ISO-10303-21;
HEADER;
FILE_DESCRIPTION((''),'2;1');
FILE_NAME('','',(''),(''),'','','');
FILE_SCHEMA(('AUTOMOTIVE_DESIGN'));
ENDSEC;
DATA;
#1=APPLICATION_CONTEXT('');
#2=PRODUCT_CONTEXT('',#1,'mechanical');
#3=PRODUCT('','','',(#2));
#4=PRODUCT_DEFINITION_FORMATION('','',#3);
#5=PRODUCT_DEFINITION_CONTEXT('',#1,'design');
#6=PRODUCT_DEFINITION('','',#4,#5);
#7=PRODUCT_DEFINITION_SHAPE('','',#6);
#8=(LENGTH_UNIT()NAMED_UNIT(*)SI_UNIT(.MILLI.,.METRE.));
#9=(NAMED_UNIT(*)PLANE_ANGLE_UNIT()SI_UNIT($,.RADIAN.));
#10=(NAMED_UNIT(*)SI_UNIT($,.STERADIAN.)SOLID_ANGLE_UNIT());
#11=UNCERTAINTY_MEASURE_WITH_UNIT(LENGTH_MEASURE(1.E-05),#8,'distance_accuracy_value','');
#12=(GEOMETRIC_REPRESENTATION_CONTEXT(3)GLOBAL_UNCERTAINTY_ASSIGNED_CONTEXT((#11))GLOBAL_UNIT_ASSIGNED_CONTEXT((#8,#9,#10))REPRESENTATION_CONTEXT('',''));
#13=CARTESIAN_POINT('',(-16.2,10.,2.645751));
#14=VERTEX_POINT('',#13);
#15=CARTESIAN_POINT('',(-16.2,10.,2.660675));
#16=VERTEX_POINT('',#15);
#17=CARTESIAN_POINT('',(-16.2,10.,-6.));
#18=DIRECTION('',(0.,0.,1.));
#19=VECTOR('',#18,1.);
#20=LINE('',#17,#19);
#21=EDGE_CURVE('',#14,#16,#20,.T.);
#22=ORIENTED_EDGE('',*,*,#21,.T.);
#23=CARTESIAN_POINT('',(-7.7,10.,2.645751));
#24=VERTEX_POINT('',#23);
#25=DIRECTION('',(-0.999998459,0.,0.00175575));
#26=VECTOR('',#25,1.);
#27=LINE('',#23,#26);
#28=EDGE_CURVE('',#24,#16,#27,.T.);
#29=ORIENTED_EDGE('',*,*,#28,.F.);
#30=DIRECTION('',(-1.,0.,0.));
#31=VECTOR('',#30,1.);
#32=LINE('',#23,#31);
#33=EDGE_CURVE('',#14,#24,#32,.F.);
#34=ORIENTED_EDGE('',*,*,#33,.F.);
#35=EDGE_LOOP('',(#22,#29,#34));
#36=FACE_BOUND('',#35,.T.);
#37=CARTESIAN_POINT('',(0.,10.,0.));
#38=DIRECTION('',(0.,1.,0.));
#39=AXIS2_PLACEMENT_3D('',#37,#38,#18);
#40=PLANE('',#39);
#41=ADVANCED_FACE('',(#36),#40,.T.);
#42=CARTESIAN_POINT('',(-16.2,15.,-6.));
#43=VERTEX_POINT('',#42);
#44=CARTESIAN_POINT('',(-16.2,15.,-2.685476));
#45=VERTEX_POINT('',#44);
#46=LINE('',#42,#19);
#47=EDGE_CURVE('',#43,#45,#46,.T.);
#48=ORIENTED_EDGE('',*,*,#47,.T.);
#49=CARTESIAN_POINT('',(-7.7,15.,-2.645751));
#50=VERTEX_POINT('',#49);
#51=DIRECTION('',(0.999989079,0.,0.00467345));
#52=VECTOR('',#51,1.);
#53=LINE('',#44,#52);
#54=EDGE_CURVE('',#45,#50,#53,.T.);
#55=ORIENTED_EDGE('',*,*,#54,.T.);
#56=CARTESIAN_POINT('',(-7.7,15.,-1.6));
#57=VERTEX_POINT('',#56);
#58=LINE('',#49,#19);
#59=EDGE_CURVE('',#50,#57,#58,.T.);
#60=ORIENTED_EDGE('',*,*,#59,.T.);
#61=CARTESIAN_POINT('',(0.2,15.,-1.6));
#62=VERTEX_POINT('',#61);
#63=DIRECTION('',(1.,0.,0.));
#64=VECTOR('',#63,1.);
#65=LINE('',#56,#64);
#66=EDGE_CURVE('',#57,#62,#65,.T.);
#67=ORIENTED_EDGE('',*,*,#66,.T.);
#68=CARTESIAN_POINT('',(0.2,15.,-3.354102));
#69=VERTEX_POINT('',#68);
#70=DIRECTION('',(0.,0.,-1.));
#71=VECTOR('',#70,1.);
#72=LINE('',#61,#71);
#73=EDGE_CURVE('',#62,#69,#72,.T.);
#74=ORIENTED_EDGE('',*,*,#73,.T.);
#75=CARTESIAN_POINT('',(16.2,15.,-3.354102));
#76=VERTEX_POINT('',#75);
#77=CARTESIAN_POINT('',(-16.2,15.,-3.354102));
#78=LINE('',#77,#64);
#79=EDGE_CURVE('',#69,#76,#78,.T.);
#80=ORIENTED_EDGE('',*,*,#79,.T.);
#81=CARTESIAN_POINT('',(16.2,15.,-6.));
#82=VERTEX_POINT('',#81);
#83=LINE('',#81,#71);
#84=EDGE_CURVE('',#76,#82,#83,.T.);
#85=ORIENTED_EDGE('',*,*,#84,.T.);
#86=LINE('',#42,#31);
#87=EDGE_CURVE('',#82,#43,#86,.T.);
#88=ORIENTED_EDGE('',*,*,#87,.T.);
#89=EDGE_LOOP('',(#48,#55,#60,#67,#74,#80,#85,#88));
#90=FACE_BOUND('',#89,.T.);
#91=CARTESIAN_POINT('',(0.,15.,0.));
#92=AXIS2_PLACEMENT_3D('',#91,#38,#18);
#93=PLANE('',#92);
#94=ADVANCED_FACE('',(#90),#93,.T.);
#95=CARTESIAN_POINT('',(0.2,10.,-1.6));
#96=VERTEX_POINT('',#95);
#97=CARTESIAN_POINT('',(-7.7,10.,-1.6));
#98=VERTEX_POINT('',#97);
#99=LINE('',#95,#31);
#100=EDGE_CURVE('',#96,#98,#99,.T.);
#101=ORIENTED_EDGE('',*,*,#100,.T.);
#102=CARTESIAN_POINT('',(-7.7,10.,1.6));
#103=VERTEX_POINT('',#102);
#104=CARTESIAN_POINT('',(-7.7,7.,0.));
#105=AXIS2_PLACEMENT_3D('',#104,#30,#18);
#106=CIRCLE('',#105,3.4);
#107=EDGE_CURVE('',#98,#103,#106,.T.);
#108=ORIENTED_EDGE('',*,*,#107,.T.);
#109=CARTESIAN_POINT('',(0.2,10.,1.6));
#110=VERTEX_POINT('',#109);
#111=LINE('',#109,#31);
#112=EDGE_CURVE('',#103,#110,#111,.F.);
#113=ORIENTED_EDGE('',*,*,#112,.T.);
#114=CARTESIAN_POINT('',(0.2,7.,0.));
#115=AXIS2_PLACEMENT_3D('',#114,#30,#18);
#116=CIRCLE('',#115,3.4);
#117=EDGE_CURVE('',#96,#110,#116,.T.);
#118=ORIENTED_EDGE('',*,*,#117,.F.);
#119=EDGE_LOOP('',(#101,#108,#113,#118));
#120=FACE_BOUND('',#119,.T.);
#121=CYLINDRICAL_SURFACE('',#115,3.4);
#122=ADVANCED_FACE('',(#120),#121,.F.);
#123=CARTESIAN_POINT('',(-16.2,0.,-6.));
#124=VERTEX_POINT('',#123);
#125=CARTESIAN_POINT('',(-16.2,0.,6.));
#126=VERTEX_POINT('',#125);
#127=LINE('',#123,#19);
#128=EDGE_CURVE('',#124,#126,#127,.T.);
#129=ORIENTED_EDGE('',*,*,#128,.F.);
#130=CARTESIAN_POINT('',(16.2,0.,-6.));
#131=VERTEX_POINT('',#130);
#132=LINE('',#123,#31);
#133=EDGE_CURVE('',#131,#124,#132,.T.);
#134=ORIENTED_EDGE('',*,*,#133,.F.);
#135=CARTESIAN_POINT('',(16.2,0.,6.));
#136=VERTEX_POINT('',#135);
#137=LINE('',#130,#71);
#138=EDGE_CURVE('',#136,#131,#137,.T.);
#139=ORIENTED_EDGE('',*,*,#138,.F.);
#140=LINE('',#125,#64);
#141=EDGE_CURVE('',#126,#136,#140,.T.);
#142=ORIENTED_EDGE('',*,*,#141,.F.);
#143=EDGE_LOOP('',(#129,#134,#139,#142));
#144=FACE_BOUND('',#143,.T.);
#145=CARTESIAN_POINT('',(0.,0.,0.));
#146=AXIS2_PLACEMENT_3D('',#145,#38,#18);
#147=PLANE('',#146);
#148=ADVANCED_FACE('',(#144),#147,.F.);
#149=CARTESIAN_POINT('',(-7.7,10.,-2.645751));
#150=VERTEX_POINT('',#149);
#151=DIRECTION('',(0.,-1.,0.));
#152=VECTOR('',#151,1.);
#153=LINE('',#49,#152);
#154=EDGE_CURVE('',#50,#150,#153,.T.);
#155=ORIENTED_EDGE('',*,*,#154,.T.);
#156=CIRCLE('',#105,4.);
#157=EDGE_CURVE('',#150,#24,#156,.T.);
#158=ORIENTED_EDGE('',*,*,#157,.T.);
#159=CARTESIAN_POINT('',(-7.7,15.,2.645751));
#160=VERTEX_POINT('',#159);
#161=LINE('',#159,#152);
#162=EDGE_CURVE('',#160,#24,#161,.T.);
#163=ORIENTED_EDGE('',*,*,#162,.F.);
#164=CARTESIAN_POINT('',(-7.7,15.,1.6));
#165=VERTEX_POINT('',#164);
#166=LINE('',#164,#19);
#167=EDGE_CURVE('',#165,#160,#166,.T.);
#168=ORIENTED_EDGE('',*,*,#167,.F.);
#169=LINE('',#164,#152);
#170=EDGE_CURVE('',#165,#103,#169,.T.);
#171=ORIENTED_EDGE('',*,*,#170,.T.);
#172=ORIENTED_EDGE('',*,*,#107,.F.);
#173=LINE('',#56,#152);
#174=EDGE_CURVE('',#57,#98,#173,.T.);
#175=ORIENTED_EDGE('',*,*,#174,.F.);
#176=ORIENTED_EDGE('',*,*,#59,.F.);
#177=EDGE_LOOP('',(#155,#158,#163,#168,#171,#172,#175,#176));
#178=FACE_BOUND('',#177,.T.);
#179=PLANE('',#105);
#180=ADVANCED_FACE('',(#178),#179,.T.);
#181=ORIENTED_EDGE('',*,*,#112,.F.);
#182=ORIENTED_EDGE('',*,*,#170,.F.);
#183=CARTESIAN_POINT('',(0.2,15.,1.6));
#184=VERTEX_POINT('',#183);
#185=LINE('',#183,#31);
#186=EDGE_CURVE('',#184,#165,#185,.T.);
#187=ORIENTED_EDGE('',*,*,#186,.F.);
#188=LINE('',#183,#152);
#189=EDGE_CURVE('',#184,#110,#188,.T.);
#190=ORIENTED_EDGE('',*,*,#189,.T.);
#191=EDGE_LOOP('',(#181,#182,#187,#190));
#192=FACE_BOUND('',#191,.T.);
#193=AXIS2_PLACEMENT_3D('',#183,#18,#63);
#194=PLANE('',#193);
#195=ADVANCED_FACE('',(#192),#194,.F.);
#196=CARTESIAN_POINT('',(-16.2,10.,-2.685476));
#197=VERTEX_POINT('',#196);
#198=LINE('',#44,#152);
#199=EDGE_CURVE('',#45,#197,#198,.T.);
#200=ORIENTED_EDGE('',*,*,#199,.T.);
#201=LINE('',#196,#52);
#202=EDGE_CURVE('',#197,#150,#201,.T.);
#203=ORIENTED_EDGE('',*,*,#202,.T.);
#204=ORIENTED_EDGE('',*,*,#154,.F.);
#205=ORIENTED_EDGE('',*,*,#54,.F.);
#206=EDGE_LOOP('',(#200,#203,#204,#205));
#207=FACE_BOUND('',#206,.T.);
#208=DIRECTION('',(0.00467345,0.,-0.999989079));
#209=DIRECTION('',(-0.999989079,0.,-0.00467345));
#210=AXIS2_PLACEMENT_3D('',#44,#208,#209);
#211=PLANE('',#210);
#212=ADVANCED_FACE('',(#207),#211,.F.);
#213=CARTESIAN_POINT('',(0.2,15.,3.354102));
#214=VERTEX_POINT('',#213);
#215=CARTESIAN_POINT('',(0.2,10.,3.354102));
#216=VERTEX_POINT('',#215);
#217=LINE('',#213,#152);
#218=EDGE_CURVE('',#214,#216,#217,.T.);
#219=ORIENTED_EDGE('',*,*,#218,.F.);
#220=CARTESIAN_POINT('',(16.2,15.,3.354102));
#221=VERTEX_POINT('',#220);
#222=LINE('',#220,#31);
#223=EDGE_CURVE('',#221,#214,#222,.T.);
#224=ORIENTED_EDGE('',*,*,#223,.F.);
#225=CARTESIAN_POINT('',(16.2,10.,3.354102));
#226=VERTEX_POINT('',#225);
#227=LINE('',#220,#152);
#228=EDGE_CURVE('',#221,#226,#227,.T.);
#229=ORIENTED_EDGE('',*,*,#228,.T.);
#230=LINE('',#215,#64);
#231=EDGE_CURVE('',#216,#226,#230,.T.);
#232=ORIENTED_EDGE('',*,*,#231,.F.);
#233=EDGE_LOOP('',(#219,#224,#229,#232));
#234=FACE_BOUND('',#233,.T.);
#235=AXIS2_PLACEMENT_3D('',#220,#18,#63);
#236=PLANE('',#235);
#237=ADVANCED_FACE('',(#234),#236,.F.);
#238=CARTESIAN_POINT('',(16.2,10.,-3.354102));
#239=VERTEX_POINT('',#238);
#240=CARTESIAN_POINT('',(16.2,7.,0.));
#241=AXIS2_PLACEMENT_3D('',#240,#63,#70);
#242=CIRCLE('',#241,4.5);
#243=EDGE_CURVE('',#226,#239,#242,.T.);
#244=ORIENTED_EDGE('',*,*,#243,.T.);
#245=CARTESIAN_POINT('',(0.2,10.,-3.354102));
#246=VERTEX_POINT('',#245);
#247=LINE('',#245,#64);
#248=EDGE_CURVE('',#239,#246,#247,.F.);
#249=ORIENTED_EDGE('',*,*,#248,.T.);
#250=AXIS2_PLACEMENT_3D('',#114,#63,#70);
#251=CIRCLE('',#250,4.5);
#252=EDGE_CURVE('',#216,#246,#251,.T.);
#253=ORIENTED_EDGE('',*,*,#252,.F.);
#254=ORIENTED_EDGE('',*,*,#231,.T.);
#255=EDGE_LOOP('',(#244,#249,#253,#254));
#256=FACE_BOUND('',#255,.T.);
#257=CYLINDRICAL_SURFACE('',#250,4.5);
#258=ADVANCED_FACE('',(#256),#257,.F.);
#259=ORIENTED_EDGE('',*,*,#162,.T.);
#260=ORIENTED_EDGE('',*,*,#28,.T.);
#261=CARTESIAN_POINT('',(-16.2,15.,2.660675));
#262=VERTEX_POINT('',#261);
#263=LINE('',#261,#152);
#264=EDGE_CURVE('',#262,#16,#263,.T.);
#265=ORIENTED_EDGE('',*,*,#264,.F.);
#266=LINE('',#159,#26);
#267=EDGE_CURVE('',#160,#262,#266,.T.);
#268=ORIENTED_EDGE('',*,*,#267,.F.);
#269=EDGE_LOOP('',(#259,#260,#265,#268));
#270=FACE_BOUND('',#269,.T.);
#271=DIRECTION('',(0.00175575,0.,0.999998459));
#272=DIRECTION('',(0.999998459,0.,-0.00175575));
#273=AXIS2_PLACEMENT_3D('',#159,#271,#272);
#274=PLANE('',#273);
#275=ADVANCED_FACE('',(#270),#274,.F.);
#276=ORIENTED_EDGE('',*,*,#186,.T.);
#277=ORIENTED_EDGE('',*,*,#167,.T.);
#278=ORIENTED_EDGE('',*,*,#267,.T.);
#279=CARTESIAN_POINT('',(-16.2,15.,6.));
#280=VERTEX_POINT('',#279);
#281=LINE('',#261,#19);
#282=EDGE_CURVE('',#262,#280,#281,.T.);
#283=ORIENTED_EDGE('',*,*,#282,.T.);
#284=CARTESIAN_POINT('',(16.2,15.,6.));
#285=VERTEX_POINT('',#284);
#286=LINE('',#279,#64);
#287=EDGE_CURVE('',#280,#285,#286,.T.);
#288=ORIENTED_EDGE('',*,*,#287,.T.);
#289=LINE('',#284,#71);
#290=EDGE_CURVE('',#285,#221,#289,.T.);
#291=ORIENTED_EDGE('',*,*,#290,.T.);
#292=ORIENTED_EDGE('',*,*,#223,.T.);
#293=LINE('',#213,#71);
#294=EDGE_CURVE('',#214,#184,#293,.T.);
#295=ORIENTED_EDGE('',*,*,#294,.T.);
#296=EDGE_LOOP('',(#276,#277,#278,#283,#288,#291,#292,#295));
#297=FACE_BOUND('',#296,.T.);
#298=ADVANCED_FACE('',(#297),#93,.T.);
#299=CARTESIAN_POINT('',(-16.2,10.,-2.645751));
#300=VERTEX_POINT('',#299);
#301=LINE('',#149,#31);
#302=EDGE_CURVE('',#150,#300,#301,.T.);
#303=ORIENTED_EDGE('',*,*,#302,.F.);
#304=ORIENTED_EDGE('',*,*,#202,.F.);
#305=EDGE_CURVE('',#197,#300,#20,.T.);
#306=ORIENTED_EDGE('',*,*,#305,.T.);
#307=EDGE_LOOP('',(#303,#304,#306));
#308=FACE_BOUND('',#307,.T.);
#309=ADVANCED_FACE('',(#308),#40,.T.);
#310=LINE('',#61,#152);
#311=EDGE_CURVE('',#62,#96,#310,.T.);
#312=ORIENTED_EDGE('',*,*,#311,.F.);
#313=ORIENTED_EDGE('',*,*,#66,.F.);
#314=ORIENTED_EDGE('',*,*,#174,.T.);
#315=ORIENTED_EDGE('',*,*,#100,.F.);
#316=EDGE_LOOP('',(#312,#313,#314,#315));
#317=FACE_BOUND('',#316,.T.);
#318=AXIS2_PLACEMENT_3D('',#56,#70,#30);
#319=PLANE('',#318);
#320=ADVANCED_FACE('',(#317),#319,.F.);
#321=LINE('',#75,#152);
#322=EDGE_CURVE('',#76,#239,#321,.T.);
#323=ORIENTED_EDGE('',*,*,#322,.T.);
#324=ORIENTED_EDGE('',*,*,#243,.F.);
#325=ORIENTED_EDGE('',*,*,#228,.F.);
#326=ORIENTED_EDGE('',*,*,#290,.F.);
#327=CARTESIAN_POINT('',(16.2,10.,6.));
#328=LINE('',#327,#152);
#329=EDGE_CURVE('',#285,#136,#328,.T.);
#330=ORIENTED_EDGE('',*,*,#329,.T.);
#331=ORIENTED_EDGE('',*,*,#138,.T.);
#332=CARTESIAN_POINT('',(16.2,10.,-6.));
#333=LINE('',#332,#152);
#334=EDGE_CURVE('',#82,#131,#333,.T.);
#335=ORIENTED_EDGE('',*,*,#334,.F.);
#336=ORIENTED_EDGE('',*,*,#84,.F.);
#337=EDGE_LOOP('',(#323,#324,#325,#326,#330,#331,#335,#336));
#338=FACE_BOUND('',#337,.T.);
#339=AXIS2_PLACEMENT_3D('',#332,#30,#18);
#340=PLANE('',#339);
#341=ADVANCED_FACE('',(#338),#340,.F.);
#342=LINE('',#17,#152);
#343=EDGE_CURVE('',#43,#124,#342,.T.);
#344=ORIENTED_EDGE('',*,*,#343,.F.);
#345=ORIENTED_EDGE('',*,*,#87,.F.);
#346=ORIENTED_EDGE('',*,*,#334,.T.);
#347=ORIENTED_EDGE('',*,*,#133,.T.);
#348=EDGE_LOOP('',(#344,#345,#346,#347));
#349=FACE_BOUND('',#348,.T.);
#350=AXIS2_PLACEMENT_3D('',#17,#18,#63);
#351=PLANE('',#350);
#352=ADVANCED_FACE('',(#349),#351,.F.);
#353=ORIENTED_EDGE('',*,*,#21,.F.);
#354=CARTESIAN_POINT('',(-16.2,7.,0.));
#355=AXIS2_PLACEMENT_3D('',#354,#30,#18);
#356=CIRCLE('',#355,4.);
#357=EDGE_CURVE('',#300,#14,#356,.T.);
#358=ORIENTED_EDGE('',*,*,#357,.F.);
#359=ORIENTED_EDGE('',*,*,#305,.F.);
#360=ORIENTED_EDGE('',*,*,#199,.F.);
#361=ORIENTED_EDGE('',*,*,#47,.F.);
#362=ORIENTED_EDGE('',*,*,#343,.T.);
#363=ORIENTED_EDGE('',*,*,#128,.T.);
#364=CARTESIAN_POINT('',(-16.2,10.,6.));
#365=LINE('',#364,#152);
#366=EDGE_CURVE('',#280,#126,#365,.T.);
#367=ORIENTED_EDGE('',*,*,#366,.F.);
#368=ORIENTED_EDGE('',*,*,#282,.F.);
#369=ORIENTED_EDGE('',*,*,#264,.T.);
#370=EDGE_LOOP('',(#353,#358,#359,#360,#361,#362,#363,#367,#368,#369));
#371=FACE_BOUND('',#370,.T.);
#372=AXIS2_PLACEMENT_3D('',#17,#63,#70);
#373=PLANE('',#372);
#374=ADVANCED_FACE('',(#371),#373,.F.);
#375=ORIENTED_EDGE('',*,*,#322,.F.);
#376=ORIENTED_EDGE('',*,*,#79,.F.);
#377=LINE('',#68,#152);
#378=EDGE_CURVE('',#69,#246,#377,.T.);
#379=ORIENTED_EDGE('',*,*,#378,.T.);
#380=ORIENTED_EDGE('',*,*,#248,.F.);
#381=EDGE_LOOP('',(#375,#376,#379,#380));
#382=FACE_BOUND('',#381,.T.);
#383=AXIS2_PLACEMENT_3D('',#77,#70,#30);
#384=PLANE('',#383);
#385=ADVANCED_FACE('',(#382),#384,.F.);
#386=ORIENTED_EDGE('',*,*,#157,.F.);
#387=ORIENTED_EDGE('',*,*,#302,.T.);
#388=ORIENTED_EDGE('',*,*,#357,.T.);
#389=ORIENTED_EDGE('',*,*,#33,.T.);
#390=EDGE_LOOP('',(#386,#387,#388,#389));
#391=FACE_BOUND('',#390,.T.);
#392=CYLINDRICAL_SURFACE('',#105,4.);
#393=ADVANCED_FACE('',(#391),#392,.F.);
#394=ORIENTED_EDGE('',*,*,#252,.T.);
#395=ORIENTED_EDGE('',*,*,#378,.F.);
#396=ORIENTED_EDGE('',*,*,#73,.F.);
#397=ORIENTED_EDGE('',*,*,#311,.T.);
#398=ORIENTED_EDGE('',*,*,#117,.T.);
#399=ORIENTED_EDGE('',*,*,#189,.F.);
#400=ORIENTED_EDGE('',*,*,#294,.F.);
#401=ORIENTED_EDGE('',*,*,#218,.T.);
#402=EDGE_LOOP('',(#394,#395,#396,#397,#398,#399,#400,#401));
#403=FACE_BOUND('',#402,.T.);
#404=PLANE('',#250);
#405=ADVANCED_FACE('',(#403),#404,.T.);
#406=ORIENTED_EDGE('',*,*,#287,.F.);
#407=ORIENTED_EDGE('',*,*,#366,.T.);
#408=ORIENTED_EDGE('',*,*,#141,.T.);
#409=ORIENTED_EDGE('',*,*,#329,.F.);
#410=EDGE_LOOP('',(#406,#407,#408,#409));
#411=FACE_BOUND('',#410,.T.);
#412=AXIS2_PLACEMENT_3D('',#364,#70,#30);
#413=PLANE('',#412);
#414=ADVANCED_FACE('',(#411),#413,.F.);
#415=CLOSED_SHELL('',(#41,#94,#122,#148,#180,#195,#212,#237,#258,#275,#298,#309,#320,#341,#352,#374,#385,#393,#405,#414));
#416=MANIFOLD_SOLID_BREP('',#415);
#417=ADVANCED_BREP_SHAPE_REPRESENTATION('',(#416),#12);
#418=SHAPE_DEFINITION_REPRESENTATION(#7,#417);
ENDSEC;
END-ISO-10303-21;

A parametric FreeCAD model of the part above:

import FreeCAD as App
import Part
import Sketcher

V = App.Vector


def add_polygon(sketch, points):
    """Adds a closed chain of lines whose ends are joined by coincident constraints."""
    first, n = sketch.GeometryCount, len(points)
    for a, b in zip(points, points[1:] + points[:1]):
        sketch.addGeometry(Part.LineSegment(App.Vector(*a, 0), App.Vector(*b, 0)), False)
    for i in range(n):
        sketch.addConstraint(Sketcher.Constraint("Coincident", first + i, 2, first + (i + 1) % n, 1))

doc = App.newDocument("Part")
body = doc.addObject("PartDesign::Body", "Body")

# Sketch on XZ plane
sketch1 = body.newObject("Sketcher::SketchObject", "Sketch")
sketch1.AttachmentSupport = (doc.getObject("XZ_Plane"), [""])
sketch1.MapMode = "FlatFace"
add_polygon(sketch1, [(-16.2, -6), (-16.2, 6), (16.2, 6), (16.2, -6)])  # lines 0-3
sketch1.addConstraint(Sketcher.Constraint("Vertical", 0))
sketch1.addConstraint(Sketcher.Constraint("Horizontal", 1))
sketch1.addConstraint(Sketcher.Constraint("Vertical", 2))
sketch1.addConstraint(Sketcher.Constraint("Horizontal", 3))
sketch1.addConstraint(Sketcher.Constraint("Symmetric", 0, 2, 2, 2, -1, 1))
sketch1.addConstraint(Sketcher.Constraint("DistanceY", 0, 1, 0, 2, 12.0))
sketch1.addConstraint(Sketcher.Constraint("DistanceX", 1, 1, 1, 2, 32.4))
pad1 = body.newObject("PartDesign::Pad", "Pad")
pad1.Profile = sketch1
pad1.Length = 10
pad1.Reversed = True

# Sketch on YZ plane
sketch2 = body.newObject("Sketcher::SketchObject", "Sketch001")
sketch2.AttachmentSupport = (doc.getObject("YZ_Plane"), [""])
sketch2.MapMode = "FlatFace"
sketch2.AttachmentOffset = App.Placement(V(0, 0, -16.2), App.Rotation())
sketch2.addGeometry(Part.Circle(V(7, 0, 0), V(0, 0, 1), 4), False)
sketch2.addConstraint(Sketcher.Constraint("PointOnObject", 0, 3, -1))
sketch2.addConstraint(Sketcher.Constraint("Diameter", 0, 8.0))
sketch2.addConstraint(Sketcher.Constraint("DistanceX", -1, 1, 0, 3, 7.0))
pocket1 = body.newObject("PartDesign::Pocket", "Pocket")
pocket1.Profile = sketch2
pocket1.Length = 8.5
pocket1.Reversed = True

# Sketch on YZ plane
sketch3 = body.newObject("Sketcher::SketchObject", "Sketch002")
sketch3.AttachmentSupport = (doc.getObject("YZ_Plane"), [""])
sketch3.MapMode = "FlatFace"
sketch3.AttachmentOffset = App.Placement(V(0, 0, -7.7), App.Rotation())
sketch3.addGeometry(Part.Circle(V(7, 0, 0), V(0, 0, 1), 3.4), False)
sketch3.addConstraint(Sketcher.Constraint("PointOnObject", 0, 3, -1))
sketch3.addConstraint(Sketcher.Constraint("Diameter", 0, 6.8))
sketch3.addConstraint(Sketcher.Constraint("DistanceX", -1, 1, 0, 3, 7.0))
pocket2 = body.newObject("PartDesign::Pocket", "Pocket001")
pocket2.Profile = sketch3
pocket2.Length = 7.9
pocket2.Reversed = True

# Sketch on YZ plane
sketch4 = body.newObject("Sketcher::SketchObject", "Sketch003")
sketch4.AttachmentSupport = (doc.getObject("YZ_Plane"), [""])
sketch4.MapMode = "FlatFace"
sketch4.AttachmentOffset = App.Placement(V(0, 0, 16.2), App.Rotation())
sketch4.addGeometry(Part.Circle(V(7, 0, 0), V(0, 0, 1), 4.5), False)
sketch4.addConstraint(Sketcher.Constraint("PointOnObject", 0, 3, -1))
sketch4.addConstraint(Sketcher.Constraint("Diameter", 0, 9.0))
sketch4.addConstraint(Sketcher.Constraint("DistanceX", -1, 1, 0, 3, 7.0))
pocket3 = body.newObject("PartDesign::Pocket", "Pocket002")
pocket3.Profile = sketch4
pocket3.Length = 16

# Sketch on XZ plane
sketch5 = body.newObject("Sketcher::SketchObject", "Sketch004")
sketch5.AttachmentSupport = (doc.getObject("XZ_Plane"), [""])
sketch5.MapMode = "FlatFace"
sketch5.AttachmentOffset = App.Placement(V(0, 0, -10), App.Rotation())
add_polygon(sketch5, [(-16.2, -6), (-16.2, -3.354102), (16.2, -3.354102), (16.2, -6)])  # lines 0-3
sketch5.addConstraint(Sketcher.Constraint("Vertical", 0))
sketch5.addConstraint(Sketcher.Constraint("Horizontal", 1))
sketch5.addConstraint(Sketcher.Constraint("Vertical", 2))
sketch5.addConstraint(Sketcher.Constraint("Horizontal", 3))
sketch5.addConstraint(Sketcher.Constraint("DistanceX", 1, 1, 1, 2, 32.4))
sketch5.addConstraint(Sketcher.Constraint("DistanceY", 2, 2, -1, 1, 6.0))
sketch5.addConstraint(Sketcher.Constraint("DistanceX", 0, 2, -1, 1, 16.2))
sketch5.addConstraint(Sketcher.Constraint("DistanceY", 0, 1, 0, 2, 2.645898))
pad2 = body.newObject("PartDesign::Pad", "Pad001")
pad2.Profile = sketch5
pad2.Length = 5
pad2.Reversed = True

# Sketch on XZ plane
sketch6 = body.newObject("Sketcher::SketchObject", "Sketch005")
sketch6.AttachmentSupport = (doc.getObject("XZ_Plane"), [""])
sketch6.MapMode = "FlatFace"
sketch6.AttachmentOffset = App.Placement(V(0, 0, -10), App.Rotation())
add_polygon(sketch6, [(-16.2, -3.372533), (-16.2, -2.685476), (-7.7, -2.645751), (-7.7, -1.6), (0.2, -1.6), (0.2, -3.354102)])  # lines 0-5
sketch6.addConstraint(Sketcher.Constraint("Vertical", 0))
sketch6.addConstraint(Sketcher.Constraint("Vertical", 2))
sketch6.addConstraint(Sketcher.Constraint("Horizontal", 3))
sketch6.addConstraint(Sketcher.Constraint("Vertical", 4))
sketch6.addConstraint(Sketcher.Constraint("DistanceX", 3, 1, 3, 2, 7.9))
sketch6.addConstraint(Sketcher.Constraint("DistanceX", 0, 2, -1, 1, 16.2))
sketch6.addConstraint(Sketcher.Constraint("DistanceX", 1, 2, -1, 1, 7.7))
sketch6.addConstraint(Sketcher.Constraint("DistanceY", 2, 2, -1, 1, 1.6))
sketch6.addConstraint(Sketcher.Constraint("DistanceY", 4, 2, 4, 1, 1.754102))
sketch6.addConstraint(Sketcher.Constraint("DistanceY", 2, 1, 2, 2, 1.045751))
sketch6.addConstraint(Sketcher.Constraint("DistanceY", 0, 1, 0, 2, 0.687057))
sketch6.addConstraint(Sketcher.Constraint("DistanceY", 5, 2, 1, 2, 0.726781))
pad3 = body.newObject("PartDesign::Pad", "Pad002")
pad3.Profile = sketch6
pad3.Length = 5
pad3.Reversed = True

# Sketch on XZ plane
sketch7 = body.newObject("Sketcher::SketchObject", "Sketch006")
sketch7.AttachmentSupport = (doc.getObject("XZ_Plane"), [""])
sketch7.MapMode = "FlatFace"
sketch7.AttachmentOffset = App.Placement(V(0, 0, -10), App.Rotation())
add_polygon(sketch7, [(-16.2, 2.660675), (-16.2, 6), (16.2, 6), (16.2, 3.354102), (0.2, 3.354102), (0.2, 1.6), (-7.7, 1.6), (-7.7, 2.645751)])  # lines 0-7
sketch7.addConstraint(Sketcher.Constraint("Vertical", 0))
sketch7.addConstraint(Sketcher.Constraint("Horizontal", 1))
sketch7.addConstraint(Sketcher.Constraint("Vertical", 2))
sketch7.addConstraint(Sketcher.Constraint("Horizontal", 3))
sketch7.addConstraint(Sketcher.Constraint("Vertical", 4))
sketch7.addConstraint(Sketcher.Constraint("Horizontal", 5))
sketch7.addConstraint(Sketcher.Constraint("Vertical", 6))
sketch7.addConstraint(Sketcher.Constraint("DistanceX", 3, 2, 3, 1, 16.0))
sketch7.addConstraint(Sketcher.Constraint("DistanceX", 1, 1, 1, 2, 32.4))
sketch7.addConstraint(Sketcher.Constraint("DistanceX", 5, 2, 5, 1, 7.9))
sketch7.addConstraint(Sketcher.Constraint("DistanceY", -1, 1, 0, 2, 6.0))
sketch7.addConstraint(Sketcher.Constraint("DistanceX", 0, 2, -1, 1, 16.2))
sketch7.addConstraint(Sketcher.Constraint("DistanceY", -1, 1, 4, 2, 1.6))
sketch7.addConstraint(Sketcher.Constraint("DistanceY", 2, 2, 2, 1, 2.645898))
sketch7.addConstraint(Sketcher.Constraint("DistanceY", 6, 1, 6, 2, 1.045751))
sketch7.addConstraint(Sketcher.Constraint("DistanceY", 0, 1, 0, 2, 3.339325))
pad4 = body.newObject("PartDesign::Pad", "Pad003")
pad4.Profile = sketch7
pad4.Length = 5
pad4.Reversed = True

doc.recompute()
